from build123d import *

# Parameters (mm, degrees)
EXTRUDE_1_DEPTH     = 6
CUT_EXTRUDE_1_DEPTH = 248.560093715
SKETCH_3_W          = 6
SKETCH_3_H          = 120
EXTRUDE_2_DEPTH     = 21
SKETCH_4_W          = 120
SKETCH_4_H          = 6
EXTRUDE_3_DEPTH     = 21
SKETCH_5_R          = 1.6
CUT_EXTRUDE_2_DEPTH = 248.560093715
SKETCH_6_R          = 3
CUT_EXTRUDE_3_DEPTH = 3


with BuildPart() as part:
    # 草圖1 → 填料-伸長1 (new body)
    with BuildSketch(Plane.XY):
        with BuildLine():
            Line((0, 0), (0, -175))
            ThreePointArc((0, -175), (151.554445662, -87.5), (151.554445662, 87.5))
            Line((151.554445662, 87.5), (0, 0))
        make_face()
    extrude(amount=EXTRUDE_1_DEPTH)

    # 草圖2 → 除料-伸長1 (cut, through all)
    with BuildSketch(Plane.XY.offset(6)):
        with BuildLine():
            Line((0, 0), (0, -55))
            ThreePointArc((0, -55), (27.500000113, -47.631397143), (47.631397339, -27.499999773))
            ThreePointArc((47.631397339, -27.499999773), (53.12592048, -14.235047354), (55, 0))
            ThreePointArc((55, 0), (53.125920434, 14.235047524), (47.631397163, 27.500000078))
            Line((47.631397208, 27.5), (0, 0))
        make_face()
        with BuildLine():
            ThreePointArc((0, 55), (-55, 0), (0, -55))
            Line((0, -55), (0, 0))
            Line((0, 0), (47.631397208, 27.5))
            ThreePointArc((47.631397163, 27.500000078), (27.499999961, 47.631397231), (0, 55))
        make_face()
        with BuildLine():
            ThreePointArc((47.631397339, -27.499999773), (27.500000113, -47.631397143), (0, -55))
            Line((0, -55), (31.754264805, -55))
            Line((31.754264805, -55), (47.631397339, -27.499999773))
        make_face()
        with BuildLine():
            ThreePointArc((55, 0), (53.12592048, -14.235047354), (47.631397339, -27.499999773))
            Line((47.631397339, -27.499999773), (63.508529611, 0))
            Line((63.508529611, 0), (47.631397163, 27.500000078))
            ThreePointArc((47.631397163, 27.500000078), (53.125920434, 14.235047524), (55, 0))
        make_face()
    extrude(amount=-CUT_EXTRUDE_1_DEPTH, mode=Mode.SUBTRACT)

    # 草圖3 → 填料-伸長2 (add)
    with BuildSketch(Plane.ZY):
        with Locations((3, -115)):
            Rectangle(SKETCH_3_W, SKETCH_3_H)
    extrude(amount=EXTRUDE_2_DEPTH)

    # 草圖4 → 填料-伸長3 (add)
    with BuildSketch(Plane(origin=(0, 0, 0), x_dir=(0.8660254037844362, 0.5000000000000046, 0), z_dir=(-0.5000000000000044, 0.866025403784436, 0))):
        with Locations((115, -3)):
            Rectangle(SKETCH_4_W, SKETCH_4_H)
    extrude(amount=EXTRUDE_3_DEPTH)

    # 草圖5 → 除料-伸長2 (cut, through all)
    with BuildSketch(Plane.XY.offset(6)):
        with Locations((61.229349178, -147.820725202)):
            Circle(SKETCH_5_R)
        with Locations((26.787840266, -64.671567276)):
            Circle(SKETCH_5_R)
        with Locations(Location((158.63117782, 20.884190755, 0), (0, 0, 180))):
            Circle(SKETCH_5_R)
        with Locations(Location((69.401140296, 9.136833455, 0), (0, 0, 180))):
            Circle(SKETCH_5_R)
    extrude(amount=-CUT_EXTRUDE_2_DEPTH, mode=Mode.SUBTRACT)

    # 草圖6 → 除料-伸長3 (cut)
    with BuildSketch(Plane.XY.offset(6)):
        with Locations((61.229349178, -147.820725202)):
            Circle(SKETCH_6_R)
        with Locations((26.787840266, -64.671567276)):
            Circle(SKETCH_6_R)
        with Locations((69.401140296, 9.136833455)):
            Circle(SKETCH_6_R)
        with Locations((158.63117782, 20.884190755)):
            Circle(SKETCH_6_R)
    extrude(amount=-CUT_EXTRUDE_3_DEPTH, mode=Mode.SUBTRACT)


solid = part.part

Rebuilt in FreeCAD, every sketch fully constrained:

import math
import FreeCAD as App
import Part
import Sketcher
from FreeCAD import Vector
Q = App.Units.Quantity


def add_polygon(sketch, points):
    """Adds a closed chain of lines whose ends are joined by coincident constraints."""
    first, n = sketch.GeometryCount, len(points)
    for a, b in zip(points, points[1:] + points[:1]):
        sketch.addGeometry(Part.LineSegment(App.Vector(*a, 0), App.Vector(*b, 0)), False)
    for i in range(n):
        sketch.addConstraint(Sketcher.Constraint("Coincident", first + i, 2, first + (i + 1) % n, 1))

doc = App.newDocument("Part")
body = doc.addObject("PartDesign::Body", "Body")

sketch1 = body.newObject("Sketcher::SketchObject", "Sketch")
sketch1.AttachmentSupport = (doc.getObject("XY_Plane"), [""])
sketch1.MapMode = "FlatFace"
sketch1.addGeometry([
    Part.LineSegment(Vector(0, 0, 0), Vector(0, -175, 0)),
    Part.ArcOfCircle(Part.Circle(Vector(0, 0, 0), Vector(0, 0, 1), 175), math.radians(-90), math.radians(30)),
    Part.LineSegment(Vector(152, 88, 0), Vector(0, 0, 0)),
], False)
sketch1.addConstraint([
    Sketcher.Constraint("Coincident", 0, 2, 1, 1),
    Sketcher.Constraint("Coincident", 1, 2, 2, 1),
    Sketcher.Constraint("Coincident", 2, 2, 0, 1),
    Sketcher.Constraint("Vertical", 0),
    Sketcher.Constraint("Coincident", 1, 3, -1, 1),
    Sketcher.Constraint("Coincident", 2, 2, -1, 1),
    Sketcher.Constraint("Radius", 1, Q("175 mm")),
    Sketcher.Constraint("Angle", 2, Q("-150 deg")),
])
pad1 = body.newObject("PartDesign::Pad", "Pad")
pad1.Profile = sketch1
pad1.Length = 6

sketch2 = body.newObject("Sketcher::SketchObject", "Sketch001")
sketch2.AttachmentSupport = (doc.getObject("XY_Plane"), [""])
sketch2.MapMode = "FlatFace"
sketch2.AttachmentOffset = App.Placement(Vector(0, 0, 6), App.Rotation())
sketch2.addGeometry([
    Part.ArcOfCircle(Part.Circle(Vector(0, 0, 0), Vector(0, 0, 1), 55), math.radians(30), math.radians(90)),
    Part.ArcOfCircle(Part.Circle(Vector(0, 0, 0), Vector(0, 0, 1), 55), math.radians(90), math.radians(270)),
    Part.LineSegment(Vector(0, -55, 0), Vector(32, -55, 0)),
    Part.LineSegment(Vector(32, -55, 0), Vector(48, -27, 0)),
    Part.LineSegment(Vector(48, -27, 0), Vector(64, 0, 0)),
    Part.LineSegment(Vector(64, 0, 0), Vector(48, 28, 0)),
], False)
sketch2.addConstraint([
    Sketcher.Constraint("Tangent", 0, 2, 1, 1),
    Sketcher.Constraint("Tangent", 1, 2, 2, 1),
    Sketcher.Constraint("Coincident", 2, 2, 3, 1),
    Sketcher.Constraint("Coincident", 3, 2, 4, 1),
    Sketcher.Constraint("Coincident", 4, 2, 5, 1),
    Sketcher.Constraint("Tangent", 5, 2, 0, 1),
    Sketcher.Constraint("Horizontal", 2),
    Sketcher.Constraint("Coincident", 0, 3, -1, 1),
    Sketcher.Constraint("Equal", 0, 1),
    Sketcher.Constraint("Symmetric", 3, 2, 5, 2, -1),
    Sketcher.Constraint("PointOnObject", 0, 2, -2),
    Sketcher.Constraint("PointOnObject", 4, 2, -1),
    Sketcher.Constraint("Parallel", 3, 4),
    Sketcher.Constraint("Equal", 3, 4),
    Sketcher.Constraint("Radius", 0, Q("55 mm")),
])
pocket1 = body.newObject("PartDesign::Pocket", "Pocket")
pocket1.Profile = sketch2
pocket1.Type = "ThroughAll"

sketch3 = body.newObject("Sketcher::SketchObject", "Sketch002")
sketch3.AttachmentSupport = (doc.getObject("YZ_Plane"), [""])
sketch3.MapMode = "FlatFace"
add_polygon(sketch3, [(-55, 0), (-175, 0), (-175, 6), (-55, 6)])
sketch3.addConstraint([
    Sketcher.Constraint("Horizontal", 0),
    Sketcher.Constraint("Vertical", 1),
    Sketcher.Constraint("Horizontal", 2),
    Sketcher.Constraint("Vertical", 3),
    Sketcher.Constraint("PointOnObject", 0, 2, -1),
    Sketcher.Constraint("DistanceX", 0, 2, 0, 1, Q("120 mm")),
    Sketcher.Constraint("DistanceY", 1, 1, 1, 2, Q("6 mm")),
    Sketcher.Constraint("DistanceX", 0, 2, -1, 1, Q("175 mm")),
])
pad2 = body.newObject("PartDesign::Pad", "Pad001")
pad2.Profile = sketch3
pad2.Length = 21
pad2.Reversed = True

sketch4 = body.newObject("Sketcher::SketchObject", "Sketch003")
sketch4.Placement = App.Placement(Vector(0, 0, 0), App.Rotation(Vector(0.866025404, 0.5, 0), Vector(0, 0, -1), Vector(-0.5, 0.866025404, 0), "ZXY"))
add_polygon(sketch4, [(55, 0), (55, -6), (175, -6), (175, 0)])
sketch4.addConstraint([
    Sketcher.Constraint("Vertical", 0),
    Sketcher.Constraint("Horizontal", 1),
    Sketcher.Constraint("Vertical", 2),
    Sketcher.Constraint("Horizontal", 3),
    Sketcher.Constraint("PointOnObject", 2, 2, -1),
    Sketcher.Constraint("DistanceX", 1, 1, 1, 2, Q("120 mm")),
    Sketcher.Constraint("DistanceY", 0, 2, 0, 1, Q("6 mm")),
    Sketcher.Constraint("DistanceX", -1, 1, 0, 2, Q("55 mm")),
])
pad3 = body.newObject("PartDesign::Pad", "Pad002")
pad3.Profile = sketch4
pad3.Length = 21

sketch5 = body.newObject("Sketcher::SketchObject", "Sketch004")
sketch5.AttachmentSupport = (doc.getObject("XY_Plane"), [""])
sketch5.MapMode = "FlatFace"
sketch5.AttachmentOffset = App.Placement(Vector(0, 0, 6), App.Rotation())
sketch5.addGeometry([
    Part.Circle(Vector(61.2, -147.8, 0), Vector(0, 0, 1), 1.6),
    Part.Circle(Vector(26.8, -64.7, 0), Vector(0, 0, 1), 1.6),
    Part.Circle(Vector(158.6, 20.9, 0), Vector(0, 0, 1), 1.6),
    Part.Circle(Vector(69.4, 9.1, 0), Vector(0, 0, 1), 1.6),
], False)
sketch5.addConstraint([
    Sketcher.Constraint("Equal", 0, 1),
    Sketcher.Constraint("Equal", 1, 2),
    Sketcher.Constraint("Equal", 2, 3),
    Sketcher.Constraint("Diameter", 0, Q("3.2 mm")),
    Sketcher.Constraint("DistanceX", 1, 3, 3, 3, Q("42.6133 mm")),
    Sketcher.Constraint("DistanceY", 1, 3, 3, 3, Q("73.808401 mm")),
    Sketcher.Constraint("DistanceX", -1, 1, 0, 3, Q("61.229349 mm")),
    Sketcher.Constraint("DistanceX", -1, 1, 1, 3, Q("26.78784 mm")),
    Sketcher.Constraint("DistanceY", -1, 1, 2, 3, Q("20.884191 mm")),
    Sketcher.Constraint("DistanceY", 1, 3, 2, 3, Q("85.555758 mm")),
    Sketcher.Constraint("DistanceX", 0, 3, 2, 3, Q("97.401829 mm")),
    Sketcher.Constraint("DistanceY", 0, 3, 3, 3, Q("156.957559 mm")),
])
pocket2 = body.newObject("PartDesign::Pocket", "Pocket001")
pocket2.Profile = sketch5
pocket2.Type = "ThroughAll"

sketch6 = body.newObject("Sketcher::SketchObject", "Sketch005")
sketch6.AttachmentSupport = (doc.getObject("XY_Plane"), [""])
sketch6.MapMode = "FlatFace"
sketch6.AttachmentOffset = App.Placement(Vector(0, 0, 6), App.Rotation())
sketch6.addGeometry([
    Part.Circle(Vector(61.2, -147.8, 0), Vector(0, 0, 1), 3),
    Part.Circle(Vector(26.8, -64.7, 0), Vector(0, 0, 1), 3),
    Part.Circle(Vector(69.4, 9.1, 0), Vector(0, 0, 1), 3),
    Part.Circle(Vector(158.6, 20.9, 0), Vector(0, 0, 1), 3),
], False)
sketch6.addConstraint([
    Sketcher.Constraint("Equal", 0, 1),
    Sketcher.Constraint("Equal", 1, 2),
    Sketcher.Constraint("Equal", 2, 3),
    Sketcher.Constraint("Diameter", 0, Q("6 mm")),
    Sketcher.Constraint("DistanceX", 1, 3, 2, 3, Q("42.6133 mm")),
    Sketcher.Constraint("DistanceY", 1, 3, 2, 3, Q("73.808401 mm")),
    Sketcher.Constraint("DistanceX", -1, 1, 0, 3, Q("61.229349 mm")),
    Sketcher.Constraint("DistanceX", -1, 1, 1, 3, Q("26.78784 mm")),
    Sketcher.Constraint("DistanceY", -1, 1, 3, 3, Q("20.884191 mm")),
    Sketcher.Constraint("DistanceY", 0, 3, 2, 3, Q("156.957559 mm")),
    Sketcher.Constraint("DistanceY", 1, 3, 3, 3, Q("85.555758 mm")),
    Sketcher.Constraint("DistanceX", 0, 3, 3, 3, Q("97.401829 mm")),
])
pocket3 = body.newObject("PartDesign::Pocket", "Pocket002")
pocket3.Profile = sketch6
pocket3.Length = 3

doc.recompute()
